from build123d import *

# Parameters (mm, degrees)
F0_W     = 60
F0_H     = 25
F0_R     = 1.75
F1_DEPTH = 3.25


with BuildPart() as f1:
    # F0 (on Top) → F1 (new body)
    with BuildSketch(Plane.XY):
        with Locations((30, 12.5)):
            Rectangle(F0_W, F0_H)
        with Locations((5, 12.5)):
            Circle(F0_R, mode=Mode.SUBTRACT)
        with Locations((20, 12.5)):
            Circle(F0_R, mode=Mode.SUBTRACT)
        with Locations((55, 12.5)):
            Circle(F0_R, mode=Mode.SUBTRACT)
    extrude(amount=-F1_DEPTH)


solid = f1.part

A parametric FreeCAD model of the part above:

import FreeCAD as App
import Part
import Sketcher
from FreeCAD import Vector


def add_polygon(sketch, points):
    """Adds a closed chain of lines whose ends are joined by coincident constraints."""
    first, n = sketch.GeometryCount, len(points)
    for a, b in zip(points, points[1:] + points[:1]):
        sketch.addGeometry(Part.LineSegment(App.Vector(*a, 0), App.Vector(*b, 0)), False)
    for i in range(n):
        sketch.addConstraint(Sketcher.Constraint("Coincident", first + i, 2, first + (i + 1) % n, 1))

doc = App.newDocument("Part")
body = doc.addObject("PartDesign::Body", "Body")

# Sketch on XY plane
sketch1 = doc.addObject("Sketcher::SketchObject", "Sketch")
body.addObject(sketch1)
sketch1.AttachmentSupport = (doc.XY_Plane, [""])
sketch1.MapMode = "FlatFace"
add_polygon(sketch1, [(0, 25), (0, 0), (60, 0), (60, 25)])  # lines 0-3
sketch1.addGeometry(Part.Circle(Vector(5, 12.5, 0), Vector(0, 0, 1), 1.8), False)  # 4
sketch1.addGeometry(Part.Circle(Vector(20, 12.5, 0), Vector(0, 0, 1), 1.8), False)  # 5
sketch1.addGeometry(Part.Circle(Vector(55, 12.5, 0), Vector(0, 0, 1), 1.8), False)  # 6
sketch1.addConstraint(Sketcher.Constraint("Vertical", 0))
sketch1.addConstraint(Sketcher.Constraint("Horizontal", 1))
sketch1.addConstraint(Sketcher.Constraint("Vertical", 2))
sketch1.addConstraint(Sketcher.Constraint("Horizontal", 3))
sketch1.addConstraint(Sketcher.Constraint("Coincident", 0, 2, -1, 1))
sketch1.addConstraint(Sketcher.Constraint("Equal", 4, 5))
sketch1.addConstraint(Sketcher.Constraint("Equal", 5, 6))
sketch1.addConstraint(Sketcher.Constraint("Horizontal", 4, 3, 5, 3))
sketch1.addConstraint(Sketcher.Constraint("Horizontal", 5, 3, 6, 3))
sketch1.addConstraint(Sketcher.Constraint("Diameter", 4, 3.5))
sketch1.addConstraint(Sketcher.Constraint("DistanceX", 1, 1, 1, 2, 60.0))
sketch1.addConstraint(Sketcher.Constraint("DistanceY", 0, 2, 0, 1, 25.0))
sketch1.addConstraint(Sketcher.Constraint("DistanceX", -1, 1, 4, 3, 5.0))
sketch1.addConstraint(Sketcher.Constraint("DistanceX", -1, 1, 5, 3, 20.0))
sketch1.addConstraint(Sketcher.Constraint("DistanceX", -1, 1, 6, 3, 55.0))
sketch1.addConstraint(Sketcher.Constraint("DistanceY", -1, 1, 4, 3, 12.5))
pad1 = doc.addObject("PartDesign::Pad", "Pad")
body.addObject(pad1)
pad1.Profile = sketch1
pad1.Length = 3.25
pad1.Reversed = True

doc.recompute()
